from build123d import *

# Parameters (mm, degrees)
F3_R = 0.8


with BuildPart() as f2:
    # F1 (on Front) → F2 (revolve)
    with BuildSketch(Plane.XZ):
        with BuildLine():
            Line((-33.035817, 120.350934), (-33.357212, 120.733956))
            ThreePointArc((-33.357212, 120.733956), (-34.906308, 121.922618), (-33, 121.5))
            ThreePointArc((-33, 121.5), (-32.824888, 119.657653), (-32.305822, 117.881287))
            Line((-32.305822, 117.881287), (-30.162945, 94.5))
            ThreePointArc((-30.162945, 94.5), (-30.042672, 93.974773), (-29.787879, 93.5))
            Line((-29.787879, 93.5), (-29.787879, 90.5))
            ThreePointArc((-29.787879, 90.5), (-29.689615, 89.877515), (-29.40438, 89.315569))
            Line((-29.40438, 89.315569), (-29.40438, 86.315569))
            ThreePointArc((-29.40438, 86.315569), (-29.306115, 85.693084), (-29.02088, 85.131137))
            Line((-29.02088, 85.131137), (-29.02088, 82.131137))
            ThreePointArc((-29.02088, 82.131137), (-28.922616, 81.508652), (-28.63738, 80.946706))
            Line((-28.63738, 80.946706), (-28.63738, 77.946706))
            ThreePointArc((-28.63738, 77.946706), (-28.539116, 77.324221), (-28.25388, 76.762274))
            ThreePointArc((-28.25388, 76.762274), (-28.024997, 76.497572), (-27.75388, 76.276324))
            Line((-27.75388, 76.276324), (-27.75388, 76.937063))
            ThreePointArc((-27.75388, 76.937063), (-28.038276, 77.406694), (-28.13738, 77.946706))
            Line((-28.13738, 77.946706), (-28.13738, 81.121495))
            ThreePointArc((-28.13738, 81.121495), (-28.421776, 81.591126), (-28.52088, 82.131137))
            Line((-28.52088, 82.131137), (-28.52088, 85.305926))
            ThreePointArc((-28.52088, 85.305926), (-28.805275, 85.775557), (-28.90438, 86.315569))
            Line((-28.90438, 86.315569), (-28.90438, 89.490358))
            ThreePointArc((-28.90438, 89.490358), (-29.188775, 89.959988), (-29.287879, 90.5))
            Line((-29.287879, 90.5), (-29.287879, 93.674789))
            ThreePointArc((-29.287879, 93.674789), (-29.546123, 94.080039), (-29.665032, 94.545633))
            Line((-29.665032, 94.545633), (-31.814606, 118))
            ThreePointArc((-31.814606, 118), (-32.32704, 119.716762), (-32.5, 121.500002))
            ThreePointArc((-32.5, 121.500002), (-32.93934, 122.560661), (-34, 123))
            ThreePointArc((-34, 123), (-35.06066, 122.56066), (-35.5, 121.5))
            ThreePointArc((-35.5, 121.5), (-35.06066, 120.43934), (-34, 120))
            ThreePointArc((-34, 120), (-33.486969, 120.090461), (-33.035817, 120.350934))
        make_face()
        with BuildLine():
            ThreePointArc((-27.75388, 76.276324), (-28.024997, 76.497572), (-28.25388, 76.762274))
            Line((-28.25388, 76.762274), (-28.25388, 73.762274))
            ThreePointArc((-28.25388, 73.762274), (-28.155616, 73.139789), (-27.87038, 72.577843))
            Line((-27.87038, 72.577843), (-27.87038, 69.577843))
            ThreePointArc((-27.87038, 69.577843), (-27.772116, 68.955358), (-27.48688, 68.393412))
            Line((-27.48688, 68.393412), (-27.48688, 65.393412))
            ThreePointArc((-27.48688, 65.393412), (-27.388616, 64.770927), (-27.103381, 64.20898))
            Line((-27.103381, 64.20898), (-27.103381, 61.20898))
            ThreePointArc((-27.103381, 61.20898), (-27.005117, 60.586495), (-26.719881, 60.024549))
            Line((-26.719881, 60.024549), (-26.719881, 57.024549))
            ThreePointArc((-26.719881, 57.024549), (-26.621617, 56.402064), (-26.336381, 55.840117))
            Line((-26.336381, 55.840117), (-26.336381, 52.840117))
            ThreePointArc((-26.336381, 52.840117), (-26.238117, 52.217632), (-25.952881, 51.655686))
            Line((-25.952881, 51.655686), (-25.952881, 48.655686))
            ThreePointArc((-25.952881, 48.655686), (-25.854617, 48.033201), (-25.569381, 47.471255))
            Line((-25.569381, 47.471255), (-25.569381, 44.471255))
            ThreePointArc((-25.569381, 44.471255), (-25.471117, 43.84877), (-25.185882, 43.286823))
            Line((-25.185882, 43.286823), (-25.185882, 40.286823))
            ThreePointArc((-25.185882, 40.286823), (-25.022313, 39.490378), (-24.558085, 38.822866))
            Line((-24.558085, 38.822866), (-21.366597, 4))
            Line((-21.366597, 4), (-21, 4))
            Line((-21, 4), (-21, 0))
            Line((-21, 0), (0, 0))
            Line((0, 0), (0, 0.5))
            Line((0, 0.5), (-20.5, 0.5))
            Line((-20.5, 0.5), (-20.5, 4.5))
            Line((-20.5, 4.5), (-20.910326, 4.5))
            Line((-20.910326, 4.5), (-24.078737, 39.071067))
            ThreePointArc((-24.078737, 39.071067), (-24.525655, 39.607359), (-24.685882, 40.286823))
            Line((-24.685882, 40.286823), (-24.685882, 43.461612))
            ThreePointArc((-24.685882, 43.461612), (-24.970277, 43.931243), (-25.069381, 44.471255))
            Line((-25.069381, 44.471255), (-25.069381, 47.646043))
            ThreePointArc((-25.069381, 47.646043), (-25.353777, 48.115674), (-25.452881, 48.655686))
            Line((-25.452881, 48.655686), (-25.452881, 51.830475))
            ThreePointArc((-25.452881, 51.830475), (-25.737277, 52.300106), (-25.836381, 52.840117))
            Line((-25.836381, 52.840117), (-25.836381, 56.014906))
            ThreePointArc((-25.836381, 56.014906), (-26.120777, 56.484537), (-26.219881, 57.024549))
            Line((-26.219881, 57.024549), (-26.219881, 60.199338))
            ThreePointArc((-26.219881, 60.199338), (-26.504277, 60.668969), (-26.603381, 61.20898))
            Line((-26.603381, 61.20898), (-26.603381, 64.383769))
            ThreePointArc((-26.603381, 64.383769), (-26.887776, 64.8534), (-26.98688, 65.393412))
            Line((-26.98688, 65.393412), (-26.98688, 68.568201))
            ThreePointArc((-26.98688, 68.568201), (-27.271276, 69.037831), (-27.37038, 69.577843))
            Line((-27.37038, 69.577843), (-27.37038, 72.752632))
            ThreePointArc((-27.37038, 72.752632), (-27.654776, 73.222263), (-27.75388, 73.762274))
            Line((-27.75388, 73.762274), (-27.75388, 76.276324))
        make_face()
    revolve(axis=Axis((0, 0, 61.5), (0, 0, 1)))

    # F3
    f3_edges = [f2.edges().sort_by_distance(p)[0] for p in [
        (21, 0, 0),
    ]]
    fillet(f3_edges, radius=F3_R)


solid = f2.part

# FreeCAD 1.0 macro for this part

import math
import FreeCAD as App
import Part
import Sketcher


def edges_at(feature, points):
    """Names of the edges that pass closest to the given points."""
    edges = feature.Shape.Edges
    near = lambda p: min(range(len(edges)), key=lambda i: edges[i].distToShape(Part.Vertex(*p))[0])
    return sorted({f"Edge{near(p) + 1}" for p in points})

doc = App.newDocument("Part")
body = doc.addObject("PartDesign::Body", "Body")

sketch1 = doc.addObject("Sketcher::SketchObject", "Sketch")
body.addObject(sketch1)
sketch1.AttachmentSupport = (doc.XZ_Plane, [""])
sketch1.MapMode = "FlatFace"
sketch1.addGeometry([
    Part.LineSegment(App.Vector(-33.035817, 120.350934, 0), App.Vector(-33.357212, 120.733956, 0)),
    Part.ArcOfCircle(Part.Circle(App.Vector(-34, 121.5, 0), App.Vector(0, 0, 1), 1), math.radians(-0.000007), math.radians(310.00003)),
    Part.ArcOfCircle(Part.Circle(App.Vector(-23.220852, 121.499996, 0), App.Vector(0, 0, 1), 9.779148), math.radians(179.999977), math.radians(201.718294)),
    Part.LineSegment(App.Vector(-32.305822, 117.881287, 0), App.Vector(-30.162945, 94.5, 0)),
    Part.ArcOfCircle(Part.Circle(App.Vector(-28.150583, 94.684431, 0), App.Vector(0, 0, 1), 2.020796), math.radians(-174.763517), math.radians(-144.117762)),
    Part.LineSegment(App.Vector(-29.787879, 93.5, 0), App.Vector(-29.787879, 90.5, 0)),
    Part.ArcOfCircle(Part.Circle(App.Vector(-27.76708, 90.5, 0), App.Vector(0, 0, 1), 2.020799), math.radians(-179.999997), math.radians(-144.117827)),
    Part.LineSegment(App.Vector(-29.40438, 89.315569, 0), App.Vector(-29.40438, 86.315569, 0)),
    Part.ArcOfCircle(Part.Circle(App.Vector(-27.383565, 86.315575, 0), App.Vector(0, 0, 1), 2.020815), math.radians(-179.999837), math.radians(-144.117928)),
    Part.LineSegment(App.Vector(-29.02088, 85.131137, 0), App.Vector(-29.02088, 82.131137, 0)),
    Part.ArcOfCircle(Part.Circle(App.Vector(-27.00009, 82.131136, 0), App.Vector(0, 0, 1), 2.02079), math.radians(179.999966), math.radians(215.882298)),
    Part.LineSegment(App.Vector(-28.63738, 80.946706, 0), App.Vector(-28.63738, 77.946706, 0)),
    Part.ArcOfCircle(Part.Circle(App.Vector(-26.616584, 77.946706, 0), App.Vector(0, 0, 1), 2.020796), math.radians(179.999993), math.radians(215.882243)),
    Part.LineSegment(App.Vector(-28.25388, 76.762274, 0), App.Vector(-28.25388, 73.762274, 0)),
    Part.ArcOfCircle(Part.Circle(App.Vector(-26.23309, 73.762273, 0), App.Vector(0, 0, 1), 2.02079), math.radians(179.999966), math.radians(215.882298)),
    Part.LineSegment(App.Vector(-27.87038, 72.577843, 0), App.Vector(-27.87038, 69.577843, 0)),
    Part.ArcOfCircle(Part.Circle(App.Vector(-25.84959, 69.577842, 0), App.Vector(0, 0, 1), 2.02079), math.radians(179.999966), math.radians(215.882298)),
    Part.LineSegment(App.Vector(-27.48688, 68.393412, 0), App.Vector(-27.48688, 65.393412, 0)),
    Part.ArcOfCircle(Part.Circle(App.Vector(-25.466075, 65.393413, 0), App.Vector(0, 0, 1), 2.020805), math.radians(-179.99997), math.radians(-144.117882)),
    Part.LineSegment(App.Vector(-27.103381, 64.20898, 0), App.Vector(-27.103381, 61.20898, 0)),
    Part.ArcOfCircle(Part.Circle(App.Vector(-25.082591, 61.208979, 0), App.Vector(0, 0, 1), 2.02079), math.radians(179.999966), math.radians(215.882298)),
    Part.LineSegment(App.Vector(-26.719881, 60.024549, 0), App.Vector(-26.719881, 57.024549, 0)),
    Part.ArcOfCircle(Part.Circle(App.Vector(-24.699085, 57.024549, 0), App.Vector(0, 0, 1), 2.020796), math.radians(179.999993), math.radians(215.882243)),
    Part.LineSegment(App.Vector(-26.336381, 55.840117, 0), App.Vector(-26.336381, 52.840117, 0)),
    Part.ArcOfCircle(Part.Circle(App.Vector(-24.315591, 52.840116, 0), App.Vector(0, 0, 1), 2.02079), math.radians(179.999966), math.radians(215.882298)),
    Part.LineSegment(App.Vector(-25.952881, 51.655686, 0), App.Vector(-25.952881, 48.655686, 0)),
    Part.ArcOfCircle(Part.Circle(App.Vector(-23.932091, 48.655685, 0), App.Vector(0, 0, 1), 2.02079), math.radians(179.999966), math.radians(215.882298)),
    Part.LineSegment(App.Vector(-25.569381, 47.471255, 0), App.Vector(-25.569381, 44.471255, 0)),
    Part.ArcOfCircle(Part.Circle(App.Vector(-23.548576, 44.471256, 0), App.Vector(0, 0, 1), 2.020805), math.radians(-179.99997), math.radians(-144.117882)),
    Part.LineSegment(App.Vector(-25.185882, 43.286823, 0), App.Vector(-25.185882, 40.286823, 0)),
    Part.ArcOfCircle(Part.Circle(App.Vector(-23.165087, 40.286823, 0), App.Vector(0, 0, 1), 2.020795), math.radians(179.999989), math.radians(226.422773)),
    Part.LineSegment(App.Vector(-24.558085, 38.822866, 0), App.Vector(-21.366597, 4, 0)),
    Part.LineSegment(App.Vector(-21.366597, 4, 0), App.Vector(-21, 4, 0)),
    Part.LineSegment(App.Vector(-21, 4, 0), App.Vector(-21, 0, 0)),
    Part.LineSegment(App.Vector(-21, 0, 0), App.Vector(0, 0, 0)),
    Part.LineSegment(App.Vector(0, 0, 0), App.Vector(0, 0.5, 0)),
    Part.LineSegment(App.Vector(0, 0.5, 0), App.Vector(-20.5, 0.5, 0)),
    Part.LineSegment(App.Vector(-20.5, 0.5, 0), App.Vector(-20.5, 4.5, 0)),
    Part.LineSegment(App.Vector(-20.5, 4.5, 0), App.Vector(-20.910326, 4.5, 0)),
    Part.LineSegment(App.Vector(-20.910326, 4.5, 0), App.Vector(-24.078737, 39.071067, 0)),
    Part.ArcOfCircle(Part.Circle(App.Vector(-23.165082, 40.286825, 0), App.Vector(0, 0, 1), 1.5208), math.radians(-179.999935), math.radians(-126.925247)),
    Part.LineSegment(App.Vector(-24.685882, 40.286823, 0), App.Vector(-24.685882, 43.461612, 0)),
    Part.ArcOfCircle(Part.Circle(App.Vector(-23.54858, 44.471255, 0), App.Vector(0, 0, 1), 1.520801), math.radians(-179.999991), math.radians(-138.402826)),
    Part.LineSegment(App.Vector(-25.069381, 44.471255, 0), App.Vector(-25.069381, 47.646043, 0)),
    Part.ArcOfCircle(Part.Circle(App.Vector(-23.932086, 48.655685, 0), App.Vector(0, 0, 1), 1.520795), math.radians(179.99997), math.radians(221.597313)),
    Part.LineSegment(App.Vector(-25.452881, 48.655686, 0), App.Vector(-25.452881, 51.830475, 0)),
    Part.ArcOfCircle(Part.Circle(App.Vector(-24.315586, 52.840117, 0), App.Vector(0, 0, 1), 1.520795), math.radians(-179.999993), math.radians(-138.402687)),
    Part.LineSegment(App.Vector(-25.836381, 52.840117, 0), App.Vector(-25.836381, 56.014906, 0)),
    Part.ArcOfCircle(Part.Circle(App.Vector(-24.699086, 57.024548, 0), App.Vector(0, 0, 1), 1.520795), math.radians(179.99997), math.radians(221.597313)),
    Part.LineSegment(App.Vector(-26.219881, 57.024549, 0), App.Vector(-26.219881, 60.199338, 0)),
    Part.ArcOfCircle(Part.Circle(App.Vector(-25.082586, 61.20898, 0), App.Vector(0, 0, 1), 1.520795), math.radians(-179.999993), math.radians(-138.402687)),
    Part.LineSegment(App.Vector(-26.603381, 61.20898, 0), App.Vector(-26.603381, 64.383769, 0)),
    Part.ArcOfCircle(Part.Circle(App.Vector(-25.466079, 65.393412, 0), App.Vector(0, 0, 1), 1.520801), math.radians(-179.999991), math.radians(-138.402826)),
    Part.LineSegment(App.Vector(-26.98688, 65.393412, 0), App.Vector(-26.98688, 68.568201, 0)),
    Part.ArcOfCircle(Part.Circle(App.Vector(-25.84959, 69.577841, 0), App.Vector(0, 0, 1), 1.52079), math.radians(179.999935), math.radians(221.597386)),
    Part.LineSegment(App.Vector(-27.37038, 69.577843, 0), App.Vector(-27.37038, 72.752632, 0)),
    Part.ArcOfCircle(Part.Circle(App.Vector(-26.233085, 73.762274, 0), App.Vector(0, 0, 1), 1.520795), math.radians(-179.999993), math.radians(-138.402687)),
    Part.LineSegment(App.Vector(-27.75388, 73.762274, 0), App.Vector(-27.75388, 76.937063, 0)),
    Part.ArcOfCircle(Part.Circle(App.Vector(-26.616585, 77.946705, 0), App.Vector(0, 0, 1), 1.520795), math.radians(179.99997), math.radians(221.597313)),
    Part.LineSegment(App.Vector(-28.13738, 77.946706, 0), App.Vector(-28.13738, 81.121495, 0)),
    Part.ArcOfCircle(Part.Circle(App.Vector(-27.000085, 82.131137, 0), App.Vector(0, 0, 1), 1.520795), math.radians(-179.999993), math.radians(-138.402687)),
    Part.LineSegment(App.Vector(-28.52088, 82.131137, 0), App.Vector(-28.52088, 85.305926, 0)),
    Part.ArcOfCircle(Part.Circle(App.Vector(-27.383572, 86.315573, 0), App.Vector(0, 0, 1), 1.520808), math.radians(-179.999838), math.radians(-138.402879)),
    Part.LineSegment(App.Vector(-28.90438, 86.315569, 0), App.Vector(-28.90438, 89.490358, 0)),
    Part.ArcOfCircle(Part.Circle(App.Vector(-27.767084, 90.499999, 0), App.Vector(0, 0, 1), 1.520795), math.radians(179.999974), math.radians(221.597247)),
    Part.LineSegment(App.Vector(-29.287879, 90.5, 0), App.Vector(-29.287879, 93.674789, 0)),
    Part.ArcOfCircle(Part.Circle(App.Vector(-28.150593, 94.684427, 0), App.Vector(0, 0, 1), 1.520785), math.radians(-174.763619), math.radians(-138.402565)),
    Part.LineSegment(App.Vector(-29.665032, 94.545633, 0), App.Vector(-31.814606, 118, 0)),
    Part.ArcOfCircle(Part.Circle(App.Vector(-23.220851, 121.499997, 0), App.Vector(0, 0, 1), 9.279149), math.radians(179.999971), math.radians(202.159701)),
    Part.ArcOfCircle(Part.Circle(App.Vector(-33.999999, 121.500001, 0), App.Vector(0, 0, 1), 1.499999), math.radians(0.000034), math.radians(90.000043)),
    Part.ArcOfCircle(Part.Circle(App.Vector(-33.999999, 121.499999, 0), App.Vector(0, 0, 1), 1.500001), math.radians(90.000022), math.radians(179.999978)),
    Part.ArcOfCircle(Part.Circle(App.Vector(-33.999999, 121.500001, 0), App.Vector(0, 0, 1), 1.500001), math.radians(-179.999978), math.radians(-90.000022)),
    Part.ArcOfCircle(Part.Circle(App.Vector(-33.999999, 121.499999, 0), App.Vector(0, 0, 1), 1.499999), math.radians(-90.000044), math.radians(-49.999947)),
], False)
sketch1.addConstraint([
    Sketcher.Constraint("Coincident", 0, 2, 1, 2),
    Sketcher.Constraint("Coincident", 1, 1, 2, 1),
    Sketcher.Constraint("Coincident", 2, 2, 3, 1),
    Sketcher.Constraint("Coincident", 3, 2, 4, 1),
    Sketcher.Constraint("Coincident", 4, 2, 5, 1),
    Sketcher.Constraint("Coincident", 5, 2, 6, 1),
    Sketcher.Constraint("Coincident", 6, 2, 7, 1),
    Sketcher.Constraint("Coincident", 7, 2, 8, 1),
    Sketcher.Constraint("Coincident", 8, 2, 9, 1),
    Sketcher.Constraint("Coincident", 9, 2, 10, 1),
    Sketcher.Constraint("Coincident", 10, 2, 11, 1),
    Sketcher.Constraint("Coincident", 11, 2, 12, 1),
    Sketcher.Constraint("Coincident", 12, 2, 13, 1),
    Sketcher.Constraint("Coincident", 13, 2, 14, 1),
    Sketcher.Constraint("Coincident", 14, 2, 15, 1),
    Sketcher.Constraint("Coincident", 15, 2, 16, 1),
    Sketcher.Constraint("Coincident", 16, 2, 17, 1),
    Sketcher.Constraint("Coincident", 17, 2, 18, 1),
    Sketcher.Constraint("Coincident", 18, 2, 19, 1),
    Sketcher.Constraint("Coincident", 19, 2, 20, 1),
    Sketcher.Constraint("Coincident", 20, 2, 21, 1),
    Sketcher.Constraint("Coincident", 21, 2, 22, 1),
    Sketcher.Constraint("Coincident", 22, 2, 23, 1),
    Sketcher.Constraint("Coincident", 23, 2, 24, 1),
    Sketcher.Constraint("Coincident", 24, 2, 25, 1),
    Sketcher.Constraint("Coincident", 25, 2, 26, 1),
    Sketcher.Constraint("Coincident", 26, 2, 27, 1),
    Sketcher.Constraint("Coincident", 27, 2, 28, 1),
    Sketcher.Constraint("Coincident", 28, 2, 29, 1),
    Sketcher.Constraint("Coincident", 29, 2, 30, 1),
    Sketcher.Constraint("Coincident", 30, 2, 31, 1),
    Sketcher.Constraint("Coincident", 31, 2, 32, 1),
    Sketcher.Constraint("Coincident", 32, 2, 33, 1),
    Sketcher.Constraint("Coincident", 33, 2, 34, 1),
    Sketcher.Constraint("Coincident", 34, 2, 35, 1),
    Sketcher.Constraint("Coincident", 35, 2, 36, 1),
    Sketcher.Constraint("Coincident", 36, 2, 37, 1),
    Sketcher.Constraint("Coincident", 37, 2, 38, 1),
    Sketcher.Constraint("Coincident", 38, 2, 39, 1),
    Sketcher.Constraint("Coincident", 39, 2, 40, 2),
    Sketcher.Constraint("Coincident", 40, 1, 41, 1),
    Sketcher.Constraint("Coincident", 41, 2, 42, 2),
    Sketcher.Constraint("Coincident", 42, 1, 43, 1),
    Sketcher.Constraint("Coincident", 43, 2, 44, 2),
    Sketcher.Constraint("Coincident", 44, 1, 45, 1),
    Sketcher.Constraint("Coincident", 45, 2, 46, 2),
    Sketcher.Constraint("Coincident", 46, 1, 47, 1),
    Sketcher.Constraint("Coincident", 47, 2, 48, 2),
    Sketcher.Constraint("Coincident", 48, 1, 49, 1),
    Sketcher.Constraint("Coincident", 49, 2, 50, 2),
    Sketcher.Constraint("Coincident", 50, 1, 51, 1),
    Sketcher.Constraint("Coincident", 51, 2, 52, 2),
    Sketcher.Constraint("Coincident", 52, 1, 53, 1),
    Sketcher.Constraint("Coincident", 53, 2, 54, 2),
    Sketcher.Constraint("Coincident", 54, 1, 55, 1),
    Sketcher.Constraint("Coincident", 55, 2, 56, 2),
    Sketcher.Constraint("Coincident", 56, 1, 57, 1),
    Sketcher.Constraint("Coincident", 57, 2, 58, 2),
    Sketcher.Constraint("Coincident", 58, 1, 59, 1),
    Sketcher.Constraint("Coincident", 59, 2, 60, 2),
    Sketcher.Constraint("Coincident", 60, 1, 61, 1),
    Sketcher.Constraint("Coincident", 61, 2, 62, 2),
    Sketcher.Constraint("Coincident", 62, 1, 63, 1),
    Sketcher.Constraint("Coincident", 63, 2, 64, 2),
    Sketcher.Constraint("Coincident", 64, 1, 65, 1),
    Sketcher.Constraint("Coincident", 65, 2, 66, 2),
    Sketcher.Constraint("Coincident", 66, 1, 67, 1),
    Sketcher.Constraint("Coincident", 67, 2, 68, 2),
    Sketcher.Constraint("Coincident", 68, 1, 69, 1),
    Sketcher.Constraint("Coincident", 69, 2, 70, 1),
    Sketcher.Constraint("Coincident", 70, 2, 71, 1),
    Sketcher.Constraint("Coincident", 71, 2, 72, 1),
    Sketcher.Constraint("Coincident", 72, 2, 0, 1),
    Sketcher.Constraint("Vertical", 5),
    Sketcher.Constraint("Vertical", 7),
    Sketcher.Constraint("Vertical", 9),
    Sketcher.Constraint("Vertical", 11),
    Sketcher.Constraint("Vertical", 13),
    Sketcher.Constraint("Vertical", 15),
    Sketcher.Constraint("Vertical", 17),
    Sketcher.Constraint("Vertical", 19),
    Sketcher.Constraint("Vertical", 21),
    Sketcher.Constraint("Vertical", 23),
    Sketcher.Constraint("Vertical", 25),
    Sketcher.Constraint("Vertical", 27),
    Sketcher.Constraint("Vertical", 29),
    Sketcher.Constraint("Horizontal", 32),
    Sketcher.Constraint("Vertical", 33),
    Sketcher.Constraint("Horizontal", 34),
    Sketcher.Constraint("Vertical", 35),
    Sketcher.Constraint("Horizontal", 36),
    Sketcher.Constraint("Vertical", 37),
    Sketcher.Constraint("Horizontal", 38),
    Sketcher.Constraint("Vertical", 41),
    Sketcher.Constraint("Vertical", 43),
    Sketcher.Constraint("Vertical", 45),
    Sketcher.Constraint("Vertical", 47),
    Sketcher.Constraint("Vertical", 49),
    Sketcher.Constraint("Vertical", 51),
    Sketcher.Constraint("Vertical", 53),
    Sketcher.Constraint("Vertical", 55),
    Sketcher.Constraint("Vertical", 57),
    Sketcher.Constraint("Vertical", 59),
    Sketcher.Constraint("Vertical", 61),
    Sketcher.Constraint("Vertical", 63),
    Sketcher.Constraint("Vertical", 65),
    Sketcher.Constraint("Coincident", 34, 2, -1, 1),
    Sketcher.Constraint("Coincident", 40, 3, 30, 3),
    Sketcher.Constraint("Coincident", 42, 3, 28, 3),
    Sketcher.Constraint("Coincident", 44, 3, 26, 3),
    Sketcher.Constraint("Coincident", 46, 3, 24, 3),
    Sketcher.Constraint("Coincident", 48, 3, 22, 3),
    Sketcher.Constraint("Coincident", 50, 3, 20, 3),
    Sketcher.Constraint("Coincident", 52, 3, 18, 3),
    Sketcher.Constraint("Coincident", 54, 3, 16, 3),
    Sketcher.Constraint("Coincident", 56, 3, 14, 3),
    Sketcher.Constraint("Coincident", 58, 3, 12, 3),
    Sketcher.Constraint("Coincident", 60, 3, 10, 3),
    Sketcher.Constraint("Coincident", 62, 3, 8, 3),
    Sketcher.Constraint("Coincident", 64, 3, 6, 3),
    Sketcher.Constraint("Coincident", 68, 3, 2, 3),
    Sketcher.Constraint("Coincident", 69, 3, 1, 3),
    Sketcher.Constraint("Coincident", 70, 3, 1, 3),
    Sketcher.Constraint("Coincident", 71, 3, 1, 3),
    Sketcher.Constraint("Coincident", 72, 3, 1, 3),
    Sketcher.Constraint("Radius", 1, 1.0),
    Sketcher.Constraint("Radius", 69, 1.499999),
    Sketcher.Constraint("DistanceX", 34, 1, 34, 2, 21.0),
    Sketcher.Constraint("DistanceY", 5, 2, 5, 1, 3.0),
    Sketcher.Constraint("DistanceY", 7, 2, 7, 1, 3.0),
    Sketcher.Constraint("DistanceY", 9, 2, 9, 1, 3.0),
    Sketcher.Constraint("DistanceY", 11, 2, 11, 1, 3.0),
    Sketcher.Constraint("DistanceY", 13, 2, 13, 1, 3.0),
    Sketcher.Constraint("DistanceY", 15, 2, 15, 1, 3.0),
    Sketcher.Constraint("DistanceY", 17, 2, 17, 1, 3.0),
    Sketcher.Constraint("DistanceY", 19, 2, 19, 1, 3.0),
    Sketcher.Constraint("DistanceY", 21, 2, 21, 1, 3.0),
    Sketcher.Constraint("DistanceY", 23, 2, 23, 1, 3.0),
    Sketcher.Constraint("DistanceY", 25, 2, 25, 1, 3.0),
    Sketcher.Constraint("DistanceY", 27, 2, 27, 1, 3.0),
    Sketcher.Constraint("DistanceY", 29, 2, 29, 1, 3.0),
    Sketcher.Constraint("DistanceY", 33, 2, 33, 1, 4.0),
    Sketcher.Constraint("DistanceY", 37, 1, 37, 2, 4.0),
    Sketcher.Constraint("DistanceX", 36, 2, 36, 1, 20.5),
    Sketcher.Constraint("DistanceY", 35, 1, 35, 2, 0.5),
    Sketcher.Constraint("DistanceX", 1, 3, -1, 1, 34.0),
    Sketcher.Constraint("DistanceY", -1, 1, 67, 2, 118.0),
    Sketcher.Constraint("DistanceX", 69, 2, -1, 1, 34.0),
    Sketcher.Constraint("DistanceY", -1, 1, 69, 2, 123.0),
    Sketcher.Constraint("DistanceX", 71, 2, -1, 1, 34.0),
    Sketcher.Constraint("DistanceY", -1, 1, 6, 3, 90.5),
    Sketcher.Constraint("DistanceY", -1, 1, 1, 1, 121.5),
    Sketcher.Constraint("DistanceY", -1, 1, 3, 2, 94.5),
    Sketcher.Constraint("DistanceY", -1, 1, 4, 2, 93.5),
    Sketcher.Constraint("DistanceY", -1, 1, 64, 1, 90.5),
    Sketcher.Constraint("DistanceY", -1, 1, 68, 1, 121.500002),
    Sketcher.Constraint("DistanceY", -1, 1, 70, 2, 121.5),
    Sketcher.Constraint("Radius", 6, 2.020799),
    Sketcher.Constraint("Radius", 40, 1.5208),
    Sketcher.Constraint("Radius", 42, 1.520801),
    Sketcher.Constraint("Radius", 52, 1.520801),
    Sketcher.Constraint("Radius", 10, 2.02079),
    Sketcher.Constraint("Radius", 14, 2.02079),
    Sketcher.Constraint("Radius", 16, 2.02079),
    Sketcher.Constraint("Radius", 20, 2.02079),
    Sketcher.Constraint("Radius", 24, 2.02079),
    Sketcher.Constraint("Radius", 26, 2.02079),
    Sketcher.Constraint("Radius", 54, 1.52079),
    Sketcher.Constraint("Radius", 62, 1.520808),
    Sketcher.Constraint("Radius", 68, 9.279149),
    Sketcher.Constraint("Radius", 4, 2.020796),
    Sketcher.Constraint("Radius", 8, 2.020815),
    Sketcher.Constraint("Radius", 12, 2.020796),
    Sketcher.Constraint("Radius", 18, 2.020805),
    Sketcher.Constraint("Radius", 22, 2.020796),
    Sketcher.Constraint("Radius", 28, 2.020805),
    Sketcher.Constraint("Radius", 30, 2.020795),
    Sketcher.Constraint("Radius", 44, 1.520795),
    Sketcher.Constraint("Radius", 46, 1.520795),
    Sketcher.Constraint("Radius", 48, 1.520795),
    Sketcher.Constraint("Radius", 50, 1.520795),
    Sketcher.Constraint("Radius", 56, 1.520795),
    Sketcher.Constraint("Radius", 58, 1.520795),
    Sketcher.Constraint("Radius", 60, 1.520795),
    Sketcher.Constraint("Radius", 64, 1.520795),
    Sketcher.Constraint("Radius", 66, 1.520785),
    Sketcher.Constraint("DistanceY", 41, 1, 41, 2, 3.174789),
    Sketcher.Constraint("DistanceY", 45, 1, 45, 2, 3.174789),
    Sketcher.Constraint("DistanceY", 47, 1, 47, 2, 3.174789),
    Sketcher.Constraint("DistanceY", 49, 1, 49, 2, 3.174789),
    Sketcher.Constraint("DistanceY", 51, 1, 51, 2, 3.174789),
    Sketcher.Constraint("DistanceY", 53, 1, 53, 2, 3.174789),
    Sketcher.Constraint("DistanceY", 55, 1, 55, 2, 3.174789),
    Sketcher.Constraint("DistanceY", 57, 1, 57, 2, 3.174789),
    Sketcher.Constraint("DistanceY", 59, 1, 59, 2, 3.174789),
    Sketcher.Constraint("DistanceY", 61, 1, 61, 2, 3.174789),
    Sketcher.Constraint("DistanceY", 63, 1, 63, 2, 3.174789),
    Sketcher.Constraint("DistanceY", 65, 1, 65, 2, 3.174789),
    Sketcher.Constraint("DistanceY", -1, 1, 53, 2, 68.568201),
    Sketcher.Constraint("Distance", 3, 23.479278),
    Sketcher.Constraint("Distance", 31, 34.968809),
    Sketcher.Constraint("DistanceX", 32, 1, 32, 2, 0.366597),
    Sketcher.Constraint("DistanceX", 38, 2, 38, 1, 0.410326),
    Sketcher.Constraint("DistanceY", 43, 1, 43, 2, 3.174788),
    Sketcher.Constraint("DistanceY", -1, 1, 4, 3, 94.684431),
    Sketcher.Constraint("DistanceX", 6, 3, -1, 1, 27.76708),
    Sketcher.Constraint("DistanceX", 10, 3, -1, 1, 27.00009),
    Sketcher.Constraint("DistanceX", 14, 3, -1, 1, 26.23309),
    Sketcher.Constraint("DistanceX", 16, 3, -1, 1, 25.84959),
    Sketcher.Constraint("DistanceY", -1, 1, 16, 3, 69.577842),
    Sketcher.Constraint("DistanceX", 20, 3, -1, 1, 25.082591),
    Sketcher.Constraint("DistanceY", -1, 1, 20, 3, 61.208979),
    Sketcher.Constraint("DistanceY", -1, 1, 22, 3, 57.024549),
    Sketcher.Constraint("DistanceX", 24, 3, -1, 1, 24.315591),
    Sketcher.Constraint("DistanceX", 26, 3, -1, 1, 23.932091),
    Sketcher.Constraint("DistanceX", 42, 3, -1, 1, 23.54858),
    Sketcher.Constraint("DistanceX", 62, 3, -1, 1, 27.383572),
    Sketcher.Constraint("DistanceX", 0, 2, -1, 1, 33.357212),
    Sketcher.Constraint("DistanceX", 2, 2, -1, 1, 32.305822),
    Sketcher.Constraint("DistanceX", 10, 2, -1, 1, 28.63738),
    Sketcher.Constraint("DistanceY", -1, 1, 18, 2, 64.20898),
    Sketcher.Constraint("DistanceX", 20, 2, -1, 1, 26.719881),
    Sketcher.Constraint("DistanceX", 29, 2, -1, 1, 25.185882),
    Sketcher.Constraint("Distance", 39, 34.715955),
    Sketcher.Constraint("Distance", 67, 23.552664),
    Sketcher.Constraint("DistanceY", -1, 1, 8, 3, 86.315575),
    Sketcher.Constraint("DistanceY", -1, 1, 10, 3, 82.131136),
    Sketcher.Constraint("DistanceY", -1, 1, 12, 3, 77.946706),
    Sketcher.Constraint("DistanceY", -1, 1, 14, 3, 73.762273),
    Sketcher.Constraint("DistanceY", -1, 1, 24, 3, 52.840116),
    Sketcher.Constraint("DistanceY", -1, 1, 26, 3, 48.655685),
    Sketcher.Constraint("DistanceY", -1, 1, 28, 3, 44.471256),
    Sketcher.Constraint("DistanceY", -1, 1, 30, 3, 40.286823),
    Sketcher.Constraint("DistanceX", 66, 3, -1, 1, 28.150593),
    Sketcher.Constraint("DistanceX", 72, 2, -1, 1, 33.035817),
])
revolution = doc.addObject("PartDesign::Revolution", "Revolution")
body.addObject(revolution)
revolution.Profile = sketch1
revolution.ReferenceAxis = (sketch1, ["V_Axis"])
revolution.Angle = 360
doc.recompute()

fillet = doc.addObject("PartDesign::Fillet", "Fillet")
body.addObject(fillet)
fillet.Base = (revolution, edges_at(revolution, [(21, 0, 0)]))
fillet.Radius = 0.8

doc.recompute()
